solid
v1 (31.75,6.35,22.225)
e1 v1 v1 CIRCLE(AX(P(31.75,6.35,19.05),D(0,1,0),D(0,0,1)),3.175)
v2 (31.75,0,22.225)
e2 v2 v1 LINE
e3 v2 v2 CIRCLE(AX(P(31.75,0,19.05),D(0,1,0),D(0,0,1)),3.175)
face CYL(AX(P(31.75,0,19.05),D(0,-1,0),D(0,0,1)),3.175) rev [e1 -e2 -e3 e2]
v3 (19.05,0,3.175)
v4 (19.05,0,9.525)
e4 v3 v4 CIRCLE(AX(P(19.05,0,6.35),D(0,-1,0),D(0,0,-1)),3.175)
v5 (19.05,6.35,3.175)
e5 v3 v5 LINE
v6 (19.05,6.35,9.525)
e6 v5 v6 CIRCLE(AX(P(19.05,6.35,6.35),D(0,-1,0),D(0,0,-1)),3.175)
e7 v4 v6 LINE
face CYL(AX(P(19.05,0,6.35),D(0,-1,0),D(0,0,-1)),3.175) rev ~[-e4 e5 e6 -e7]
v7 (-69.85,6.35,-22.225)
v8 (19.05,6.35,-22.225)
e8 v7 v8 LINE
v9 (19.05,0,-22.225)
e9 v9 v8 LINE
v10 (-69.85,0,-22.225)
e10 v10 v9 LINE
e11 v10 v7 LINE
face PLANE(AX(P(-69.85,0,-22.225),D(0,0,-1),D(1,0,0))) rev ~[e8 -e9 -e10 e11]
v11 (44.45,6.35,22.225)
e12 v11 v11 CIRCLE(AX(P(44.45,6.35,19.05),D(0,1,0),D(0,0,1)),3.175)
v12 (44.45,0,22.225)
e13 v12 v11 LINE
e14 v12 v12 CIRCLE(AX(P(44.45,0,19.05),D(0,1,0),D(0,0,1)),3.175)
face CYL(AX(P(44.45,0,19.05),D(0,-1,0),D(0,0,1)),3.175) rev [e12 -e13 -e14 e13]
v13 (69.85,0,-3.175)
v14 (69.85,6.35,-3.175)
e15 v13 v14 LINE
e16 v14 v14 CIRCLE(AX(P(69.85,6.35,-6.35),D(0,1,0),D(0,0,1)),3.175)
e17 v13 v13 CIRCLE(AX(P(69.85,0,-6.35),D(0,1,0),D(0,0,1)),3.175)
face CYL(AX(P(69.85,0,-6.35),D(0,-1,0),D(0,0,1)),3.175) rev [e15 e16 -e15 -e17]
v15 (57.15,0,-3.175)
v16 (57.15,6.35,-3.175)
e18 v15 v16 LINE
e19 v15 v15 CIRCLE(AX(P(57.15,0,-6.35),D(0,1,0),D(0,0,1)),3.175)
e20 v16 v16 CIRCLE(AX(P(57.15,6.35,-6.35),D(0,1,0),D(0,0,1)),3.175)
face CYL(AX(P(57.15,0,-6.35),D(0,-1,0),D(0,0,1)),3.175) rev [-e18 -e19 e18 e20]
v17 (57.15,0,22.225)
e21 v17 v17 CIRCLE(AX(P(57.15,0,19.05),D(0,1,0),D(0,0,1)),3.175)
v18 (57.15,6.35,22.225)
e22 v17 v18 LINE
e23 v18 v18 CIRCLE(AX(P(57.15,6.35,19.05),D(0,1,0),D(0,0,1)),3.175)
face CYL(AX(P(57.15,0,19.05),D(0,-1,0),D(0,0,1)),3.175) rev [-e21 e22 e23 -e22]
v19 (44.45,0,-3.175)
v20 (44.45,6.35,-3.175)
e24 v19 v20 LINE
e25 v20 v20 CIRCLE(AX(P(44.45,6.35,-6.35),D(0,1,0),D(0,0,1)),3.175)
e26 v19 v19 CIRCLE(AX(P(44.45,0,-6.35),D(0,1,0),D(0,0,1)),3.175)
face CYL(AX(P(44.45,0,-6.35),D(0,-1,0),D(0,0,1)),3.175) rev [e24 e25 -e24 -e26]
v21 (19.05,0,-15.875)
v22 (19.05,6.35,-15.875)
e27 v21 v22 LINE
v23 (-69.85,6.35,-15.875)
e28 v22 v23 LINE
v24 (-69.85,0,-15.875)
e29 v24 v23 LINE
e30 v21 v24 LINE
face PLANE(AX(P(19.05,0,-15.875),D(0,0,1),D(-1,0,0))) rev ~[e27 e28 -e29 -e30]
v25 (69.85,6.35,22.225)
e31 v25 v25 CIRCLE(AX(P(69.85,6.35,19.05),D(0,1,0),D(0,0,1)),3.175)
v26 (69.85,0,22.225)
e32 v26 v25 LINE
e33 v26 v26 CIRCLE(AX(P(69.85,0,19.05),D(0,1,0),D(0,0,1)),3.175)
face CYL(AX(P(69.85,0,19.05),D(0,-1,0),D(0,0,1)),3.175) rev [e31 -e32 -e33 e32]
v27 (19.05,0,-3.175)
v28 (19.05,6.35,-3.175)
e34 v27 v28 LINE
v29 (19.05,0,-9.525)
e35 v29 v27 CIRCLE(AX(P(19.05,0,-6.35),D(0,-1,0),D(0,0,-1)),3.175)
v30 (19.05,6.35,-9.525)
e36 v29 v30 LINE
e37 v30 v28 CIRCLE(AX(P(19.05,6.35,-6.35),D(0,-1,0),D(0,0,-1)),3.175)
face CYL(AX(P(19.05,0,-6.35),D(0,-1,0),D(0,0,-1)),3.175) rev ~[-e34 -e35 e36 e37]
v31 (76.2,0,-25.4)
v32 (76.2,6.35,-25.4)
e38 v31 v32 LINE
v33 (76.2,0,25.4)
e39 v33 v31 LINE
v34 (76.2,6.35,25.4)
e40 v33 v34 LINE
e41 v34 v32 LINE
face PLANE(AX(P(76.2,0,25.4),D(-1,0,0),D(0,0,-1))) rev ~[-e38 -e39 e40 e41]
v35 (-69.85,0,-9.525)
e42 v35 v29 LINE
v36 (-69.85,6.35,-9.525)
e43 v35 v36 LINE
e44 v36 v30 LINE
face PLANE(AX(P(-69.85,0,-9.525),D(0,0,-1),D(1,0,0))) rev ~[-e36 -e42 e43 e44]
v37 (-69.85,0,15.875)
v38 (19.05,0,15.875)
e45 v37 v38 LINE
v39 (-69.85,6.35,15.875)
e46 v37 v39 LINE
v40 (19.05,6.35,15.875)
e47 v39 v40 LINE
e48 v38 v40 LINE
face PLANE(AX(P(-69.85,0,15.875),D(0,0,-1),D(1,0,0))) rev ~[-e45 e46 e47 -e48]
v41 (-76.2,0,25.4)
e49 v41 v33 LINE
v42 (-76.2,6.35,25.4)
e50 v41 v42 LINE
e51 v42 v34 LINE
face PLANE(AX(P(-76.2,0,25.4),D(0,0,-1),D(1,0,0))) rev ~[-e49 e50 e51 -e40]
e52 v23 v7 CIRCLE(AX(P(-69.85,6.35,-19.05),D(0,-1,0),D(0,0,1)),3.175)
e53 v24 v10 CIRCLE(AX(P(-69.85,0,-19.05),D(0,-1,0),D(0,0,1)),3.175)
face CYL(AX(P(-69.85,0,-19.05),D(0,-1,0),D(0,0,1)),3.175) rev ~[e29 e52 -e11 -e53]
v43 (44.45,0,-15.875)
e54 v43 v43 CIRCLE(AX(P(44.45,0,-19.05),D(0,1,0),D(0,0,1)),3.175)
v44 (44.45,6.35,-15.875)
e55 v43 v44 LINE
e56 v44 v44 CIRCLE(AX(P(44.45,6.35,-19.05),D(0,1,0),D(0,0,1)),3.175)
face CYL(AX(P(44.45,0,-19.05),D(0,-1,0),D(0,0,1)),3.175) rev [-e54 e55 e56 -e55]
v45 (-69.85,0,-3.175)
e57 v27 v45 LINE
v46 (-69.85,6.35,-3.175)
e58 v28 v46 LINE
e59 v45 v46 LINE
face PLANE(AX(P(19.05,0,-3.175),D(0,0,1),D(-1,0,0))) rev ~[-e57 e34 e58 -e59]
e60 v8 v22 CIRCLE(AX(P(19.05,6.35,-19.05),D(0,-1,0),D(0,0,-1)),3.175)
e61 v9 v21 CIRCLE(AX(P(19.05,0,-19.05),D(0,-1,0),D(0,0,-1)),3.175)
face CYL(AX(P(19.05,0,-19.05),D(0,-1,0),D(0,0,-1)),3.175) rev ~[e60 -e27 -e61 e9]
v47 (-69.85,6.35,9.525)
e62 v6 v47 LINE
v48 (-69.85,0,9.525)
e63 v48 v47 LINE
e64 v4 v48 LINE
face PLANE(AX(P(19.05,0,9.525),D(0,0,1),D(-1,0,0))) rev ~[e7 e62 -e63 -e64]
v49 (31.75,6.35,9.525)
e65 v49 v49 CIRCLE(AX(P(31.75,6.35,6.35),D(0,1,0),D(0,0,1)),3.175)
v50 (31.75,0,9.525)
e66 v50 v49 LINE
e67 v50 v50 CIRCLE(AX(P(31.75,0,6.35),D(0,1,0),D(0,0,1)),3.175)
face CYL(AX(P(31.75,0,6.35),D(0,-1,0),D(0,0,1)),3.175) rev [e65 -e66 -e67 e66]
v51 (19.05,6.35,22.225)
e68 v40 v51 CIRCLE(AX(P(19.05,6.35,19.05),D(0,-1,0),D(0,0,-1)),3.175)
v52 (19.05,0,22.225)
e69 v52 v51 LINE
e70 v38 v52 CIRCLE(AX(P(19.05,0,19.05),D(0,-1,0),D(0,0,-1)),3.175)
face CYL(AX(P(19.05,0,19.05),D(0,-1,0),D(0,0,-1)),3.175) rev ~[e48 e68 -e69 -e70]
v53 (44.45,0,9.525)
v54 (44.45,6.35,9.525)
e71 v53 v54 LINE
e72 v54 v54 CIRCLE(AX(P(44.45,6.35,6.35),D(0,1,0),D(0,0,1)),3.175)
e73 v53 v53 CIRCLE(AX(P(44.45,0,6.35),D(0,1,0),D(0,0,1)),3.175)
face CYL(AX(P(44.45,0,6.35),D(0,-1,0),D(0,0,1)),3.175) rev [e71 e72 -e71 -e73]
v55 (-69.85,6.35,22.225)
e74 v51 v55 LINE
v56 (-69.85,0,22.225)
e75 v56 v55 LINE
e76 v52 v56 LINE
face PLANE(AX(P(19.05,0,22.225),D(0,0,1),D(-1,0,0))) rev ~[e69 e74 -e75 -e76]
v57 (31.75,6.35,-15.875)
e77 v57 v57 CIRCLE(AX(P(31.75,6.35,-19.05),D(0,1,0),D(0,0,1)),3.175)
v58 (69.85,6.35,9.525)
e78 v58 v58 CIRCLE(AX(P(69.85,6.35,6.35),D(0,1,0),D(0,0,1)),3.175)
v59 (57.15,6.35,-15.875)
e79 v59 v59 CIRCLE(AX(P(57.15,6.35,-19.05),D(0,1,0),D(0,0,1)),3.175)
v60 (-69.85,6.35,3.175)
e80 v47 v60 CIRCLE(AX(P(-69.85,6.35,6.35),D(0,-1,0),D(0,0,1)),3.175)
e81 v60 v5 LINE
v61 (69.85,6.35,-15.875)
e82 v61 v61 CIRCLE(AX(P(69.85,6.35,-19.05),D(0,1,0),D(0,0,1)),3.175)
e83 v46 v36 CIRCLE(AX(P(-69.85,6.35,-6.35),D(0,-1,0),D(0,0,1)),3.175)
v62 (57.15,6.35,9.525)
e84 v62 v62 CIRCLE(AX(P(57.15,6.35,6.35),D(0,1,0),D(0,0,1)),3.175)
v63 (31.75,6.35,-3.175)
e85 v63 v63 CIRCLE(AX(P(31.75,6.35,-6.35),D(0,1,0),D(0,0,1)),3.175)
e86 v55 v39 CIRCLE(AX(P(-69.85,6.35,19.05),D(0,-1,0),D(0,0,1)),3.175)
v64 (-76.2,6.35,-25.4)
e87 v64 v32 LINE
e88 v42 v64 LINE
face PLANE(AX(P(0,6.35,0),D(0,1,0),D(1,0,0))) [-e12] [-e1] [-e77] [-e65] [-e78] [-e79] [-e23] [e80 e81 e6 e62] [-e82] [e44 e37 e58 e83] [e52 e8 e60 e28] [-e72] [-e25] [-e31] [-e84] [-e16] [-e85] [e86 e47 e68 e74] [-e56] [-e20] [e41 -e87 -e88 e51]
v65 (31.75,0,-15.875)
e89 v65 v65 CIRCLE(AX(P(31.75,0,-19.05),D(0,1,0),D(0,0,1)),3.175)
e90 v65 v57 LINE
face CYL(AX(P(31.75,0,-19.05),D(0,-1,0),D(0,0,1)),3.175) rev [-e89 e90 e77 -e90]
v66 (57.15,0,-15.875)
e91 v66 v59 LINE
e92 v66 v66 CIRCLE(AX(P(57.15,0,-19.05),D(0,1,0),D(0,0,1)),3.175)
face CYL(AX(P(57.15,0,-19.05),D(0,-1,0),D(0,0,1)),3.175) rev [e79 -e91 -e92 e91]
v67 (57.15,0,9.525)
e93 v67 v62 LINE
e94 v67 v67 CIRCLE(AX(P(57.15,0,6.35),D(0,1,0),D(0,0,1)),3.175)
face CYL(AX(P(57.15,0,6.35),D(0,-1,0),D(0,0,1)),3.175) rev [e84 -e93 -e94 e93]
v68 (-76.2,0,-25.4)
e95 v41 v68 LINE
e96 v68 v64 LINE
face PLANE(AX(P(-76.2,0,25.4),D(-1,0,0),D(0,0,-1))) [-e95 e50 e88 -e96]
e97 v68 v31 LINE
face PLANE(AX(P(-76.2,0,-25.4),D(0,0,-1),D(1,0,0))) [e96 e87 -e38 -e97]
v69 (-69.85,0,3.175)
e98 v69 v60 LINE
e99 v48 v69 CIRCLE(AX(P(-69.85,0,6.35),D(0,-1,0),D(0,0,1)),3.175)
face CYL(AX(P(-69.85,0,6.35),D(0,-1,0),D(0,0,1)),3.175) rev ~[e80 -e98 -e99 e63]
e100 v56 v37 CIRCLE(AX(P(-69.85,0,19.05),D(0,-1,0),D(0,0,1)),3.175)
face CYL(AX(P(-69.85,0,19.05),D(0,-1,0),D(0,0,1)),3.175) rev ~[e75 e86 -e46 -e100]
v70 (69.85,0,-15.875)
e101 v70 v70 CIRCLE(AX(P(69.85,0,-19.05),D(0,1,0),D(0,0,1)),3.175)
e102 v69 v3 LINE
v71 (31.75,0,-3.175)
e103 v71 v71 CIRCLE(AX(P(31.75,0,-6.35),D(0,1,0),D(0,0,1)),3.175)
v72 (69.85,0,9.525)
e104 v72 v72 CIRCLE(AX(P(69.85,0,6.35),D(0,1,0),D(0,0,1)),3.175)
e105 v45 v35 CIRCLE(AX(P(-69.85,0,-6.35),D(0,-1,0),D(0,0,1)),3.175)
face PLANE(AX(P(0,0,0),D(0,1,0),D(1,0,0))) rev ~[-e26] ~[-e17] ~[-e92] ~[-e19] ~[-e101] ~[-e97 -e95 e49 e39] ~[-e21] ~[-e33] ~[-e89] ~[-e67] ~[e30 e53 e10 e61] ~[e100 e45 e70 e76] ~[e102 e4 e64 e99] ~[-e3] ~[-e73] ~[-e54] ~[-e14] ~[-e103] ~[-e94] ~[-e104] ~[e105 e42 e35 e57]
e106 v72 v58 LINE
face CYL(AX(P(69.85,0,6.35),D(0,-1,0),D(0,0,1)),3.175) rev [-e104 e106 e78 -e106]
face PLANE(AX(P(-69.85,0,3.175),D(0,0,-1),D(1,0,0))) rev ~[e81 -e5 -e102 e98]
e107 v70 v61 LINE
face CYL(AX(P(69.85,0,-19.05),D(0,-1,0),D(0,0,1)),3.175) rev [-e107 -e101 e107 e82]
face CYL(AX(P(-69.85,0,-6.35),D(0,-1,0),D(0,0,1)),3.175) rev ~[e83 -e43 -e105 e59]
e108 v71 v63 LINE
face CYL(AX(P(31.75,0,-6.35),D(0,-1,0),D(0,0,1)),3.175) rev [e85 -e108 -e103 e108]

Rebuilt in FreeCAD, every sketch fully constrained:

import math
import FreeCAD as App
import Part
import Sketcher

V = App.Vector
Q = App.Units.Quantity

doc = App.newDocument("Part")
body = doc.addObject("PartDesign::Body", "Body")

# Sketch on XZ plane
sketch1 = body.newObject("Sketcher::SketchObject", "Sketch")
sketch1.AttachmentSupport = (doc.getObject("XZ_Plane"), [""])
sketch1.MapMode = "FlatFace"
sketch1.addGeometry([
    Part.LineSegment(V(-76.2, -25.4, 0), V(-76.2, 25.4, 0)),  # 0
    Part.LineSegment(V(-76.2, 25.4, 0), V(76.2, 25.4, 0)),  # 1
    Part.LineSegment(V(76.2, 25.4, 0), V(76.2, -25.4, 0)),  # 2
    Part.LineSegment(V(76.2, -25.4, 0), V(-76.2, -25.4, 0)),  # 3
    Part.ArcOfCircle(Part.Circle(V(19.1, 19.1, 0), V(0, 0, 1), 3.2), math.radians(-90), math.radians(90)),  # 4
    Part.LineSegment(V(19.1, 22.2, 0), V(-69.8, 22.2, 0)),  # 5
    Part.ArcOfCircle(Part.Circle(V(-69.8, 19.1, 0), V(0, 0, 1), 3.2), math.radians(90), math.radians(270)),  # 6
    Part.LineSegment(V(-69.8, 15.9, 0), V(19.1, 15.9, 0)),  # 7
    Part.ArcOfCircle(Part.Circle(V(19.1, 6.3, 0), V(0, 0, 1), 3.2), math.radians(-90), math.radians(90)),  # 8
    Part.LineSegment(V(19.1, 9.5, 0), V(-69.8, 9.5, 0)),  # 9
    Part.ArcOfCircle(Part.Circle(V(-69.8, 6.3, 0), V(0, 0, 1), 3.2), math.radians(90), math.radians(270)),  # 10
    Part.LineSegment(V(-69.8, 3.2, 0), V(19.1, 3.2, 0)),  # 11
    Part.Circle(V(31.8, 19.1, 0), V(0, 0, 1), 3.2),  # 12
    Part.Circle(V(44.5, 19.1, 0), V(0, 0, 1), 3.2),  # 13
    Part.Circle(V(57.1, 19.1, 0), V(0, 0, 1), 3.2),  # 14
    Part.Circle(V(69.8, 19.1, 0), V(0, 0, 1), 3.2),  # 15
    Part.Circle(V(31.8, 6.3, 0), V(0, 0, 1), 3.2),  # 16
    Part.Circle(V(44.5, 6.3, 0), V(0, 0, 1), 3.2),  # 17
    Part.Circle(V(57.1, 6.3, 0), V(0, 0, 1), 3.2),  # 18
    Part.Circle(V(69.8, 6.3, 0), V(0, 0, 1), 3.2),  # 19
    Part.ArcOfCircle(Part.Circle(V(19.1, -6.3, 0), V(0, 0, 1), 3.2), math.radians(-90), math.radians(90)),  # 20
    Part.LineSegment(V(19.1, -3.2, 0), V(-69.8, -3.2, 0)),  # 21
    Part.ArcOfCircle(Part.Circle(V(-69.8, -6.3, 0), V(0, 0, 1), 3.2), math.radians(90), math.radians(270)),  # 22
    Part.LineSegment(V(-69.8, -9.5, 0), V(19.1, -9.5, 0)),  # 23
    Part.ArcOfCircle(Part.Circle(V(-69.8, -19.1, 0), V(0, 0, 1), 3.2), math.radians(90), math.radians(270)),  # 24
    Part.LineSegment(V(-69.8, -22.2, 0), V(19.1, -22.2, 0)),  # 25
    Part.ArcOfCircle(Part.Circle(V(19.1, -19.1, 0), V(0, 0, 1), 3.2), math.radians(-90), math.radians(90)),  # 26
    Part.LineSegment(V(19.1, -15.9, 0), V(-69.8, -15.9, 0)),  # 27
    Part.Circle(V(31.8, -6.3, 0), V(0, 0, 1), 3.2),  # 28
    Part.Circle(V(44.5, -6.3, 0), V(0, 0, 1), 3.2),  # 29
    Part.Circle(V(57.1, -6.3, 0), V(0, 0, 1), 3.2),  # 30
    Part.Circle(V(69.8, -6.3, 0), V(0, 0, 1), 3.2),  # 31
    Part.Circle(V(31.8, -19.1, 0), V(0, 0, 1), 3.2),  # 32
    Part.Circle(V(44.5, -19.1, 0), V(0, 0, 1), 3.2),  # 33
    Part.Circle(V(57.1, -19.1, 0), V(0, 0, 1), 3.2),  # 34
    Part.Circle(V(69.8, -19.1, 0), V(0, 0, 1), 3.2),  # 35
], False)
sketch1.addConstraint([
    Sketcher.Constraint("Coincident", 0, 2, 1, 1),
    Sketcher.Constraint("Coincident", 1, 2, 2, 1),
    Sketcher.Constraint("Coincident", 2, 2, 3, 1),
    Sketcher.Constraint("Coincident", 3, 2, 0, 1),
    Sketcher.Constraint("Tangent", 4, 2, 5, 1),
    Sketcher.Constraint("Tangent", 5, 2, 6, 1),
    Sketcher.Constraint("Tangent", 6, 2, 7, 1),
    Sketcher.Constraint("Tangent", 7, 2, 4, 1),
    Sketcher.Constraint("Tangent", 8, 2, 9, 1),
    Sketcher.Constraint("Tangent", 9, 2, 10, 1),
    Sketcher.Constraint("Tangent", 10, 2, 11, 1),
    Sketcher.Constraint("Tangent", 11, 2, 8, 1),
    Sketcher.Constraint("Tangent", 20, 2, 21, 1),
    Sketcher.Constraint("Tangent", 21, 2, 22, 1),
    Sketcher.Constraint("Tangent", 22, 2, 23, 1),
    Sketcher.Constraint("Tangent", 23, 2, 20, 1),
    Sketcher.Constraint("Tangent", 24, 2, 25, 1),
    Sketcher.Constraint("Tangent", 25, 2, 26, 1),
    Sketcher.Constraint("Tangent", 26, 2, 27, 1),
    Sketcher.Constraint("Tangent", 27, 2, 24, 1),
    Sketcher.Constraint("Vertical", 0),
    Sketcher.Constraint("Horizontal", 1),
    Sketcher.Constraint("Vertical", 2),
    Sketcher.Constraint("Horizontal", 3),
    Sketcher.Constraint("Horizontal", 5),
    Sketcher.Constraint("Horizontal", 7),
    Sketcher.Constraint("Horizontal", 9),
    Sketcher.Constraint("Horizontal", 11),
    Sketcher.Constraint("Horizontal", 21),
    Sketcher.Constraint("Horizontal", 23),
    Sketcher.Constraint("Horizontal", 25),
    Sketcher.Constraint("Horizontal", 27),
    Sketcher.Constraint("Equal", 6, 8),
    Sketcher.Constraint("Equal", 10, 12),
    Sketcher.Constraint("Equal", 12, 13),
    Sketcher.Constraint("Equal", 13, 14),
    Sketcher.Constraint("Equal", 14, 15),
    Sketcher.Constraint("Equal", 15, 16),
    Sketcher.Constraint("Equal", 16, 17),
    Sketcher.Constraint("Equal", 17, 18),
    Sketcher.Constraint("Equal", 18, 19),
    Sketcher.Constraint("Equal", 19, 20),
    Sketcher.Constraint("Equal", 22, 24),
    Sketcher.Constraint("Equal", 26, 28),
    Sketcher.Constraint("Equal", 28, 29),
    Sketcher.Constraint("Equal", 29, 30),
    Sketcher.Constraint("Equal", 30, 31),
    Sketcher.Constraint("Equal", 31, 32),
    Sketcher.Constraint("Equal", 32, 33),
    Sketcher.Constraint("Equal", 33, 34),
    Sketcher.Constraint("Equal", 34, 35),
    Sketcher.Constraint("Symmetric", 19, 3, 22, 3, -1, 1),
    Sketcher.Constraint("Symmetric", 15, 3, 24, 3, -1, 1),
    Sketcher.Constraint("Symmetric", 10, 3, 31, 3, -1, 1),
    Sketcher.Constraint("Symmetric", 6, 3, 35, 3, -1, 1),
    Sketcher.Constraint("Symmetric", 0, 2, 2, 2, -1, 1),
    Sketcher.Constraint("Symmetric", 6, 3, 15, 3, -2),
    Sketcher.Constraint("Symmetric", 10, 3, 19, 3, -2),
    Sketcher.Constraint("Symmetric", 16, 3, 28, 3, -1),
    Sketcher.Constraint("Symmetric", 17, 3, 29, 3, -1),
    Sketcher.Constraint("Symmetric", 18, 3, 30, 3, -1),
    Sketcher.Constraint("Symmetric", 12, 3, 32, 3, -1),
    Sketcher.Constraint("Symmetric", 13, 3, 33, 3, -1),
    Sketcher.Constraint("Symmetric", 14, 3, 34, 3, -1),
    Sketcher.Constraint("Horizontal", 6, 3, 12, 3),
    Sketcher.Constraint("Horizontal", 12, 3, 13, 3),
    Sketcher.Constraint("Horizontal", 13, 3, 14, 3),
    Sketcher.Constraint("Horizontal", 10, 3, 16, 3),
    Sketcher.Constraint("Horizontal", 16, 3, 17, 3),
    Sketcher.Constraint("Horizontal", 17, 3, 18, 3),
    Sketcher.Constraint("Vertical", 4, 3, 8, 3),
    Sketcher.Constraint("Vertical", 6, 3, 10, 3),
    Sketcher.Constraint("Vertical", 12, 3, 16, 3),
    Sketcher.Constraint("Vertical", 13, 3, 17, 3),
    Sketcher.Constraint("Vertical", 14, 3, 18, 3),
    Sketcher.Constraint("Vertical", 8, 3, 20, 3),
    Sketcher.Constraint("Vertical", 20, 3, 26, 3),
    Sketcher.Constraint("Diameter", 12, Q("0.25 in")),
    Sketcher.Constraint("DistanceX", 1, 1, 1, 2, Q("6 in")),
    Sketcher.Constraint("DistanceY", 0, 1, 0, 2, Q("2 in")),
    Sketcher.Constraint("DistanceX", 5, 2, 5, 1, Q("3.5 in")),
    Sketcher.Constraint("DistanceX", 6, 3, 12, 3, Q("4 in")),
    Sketcher.Constraint("DistanceX", 4, 3, 13, 3, Q("1 in")),
    Sketcher.Constraint("DistanceX", 12, 3, 14, 3, Q("1 in")),
    Sketcher.Constraint("DistanceX", 13, 3, 15, 3, Q("1 in")),
    Sketcher.Constraint("DistanceY", 20, 3, 4, 3, Q("1 in")),
    Sketcher.Constraint("DistanceY", 8, 3, 4, 3, Q("0.5 in")),
])
pad1 = body.newObject("PartDesign::Pad", "Pad")
pad1.Profile = sketch1
pad1.Length = Q("0.25 in")
pad1.Reversed = True

doc.recompute()
